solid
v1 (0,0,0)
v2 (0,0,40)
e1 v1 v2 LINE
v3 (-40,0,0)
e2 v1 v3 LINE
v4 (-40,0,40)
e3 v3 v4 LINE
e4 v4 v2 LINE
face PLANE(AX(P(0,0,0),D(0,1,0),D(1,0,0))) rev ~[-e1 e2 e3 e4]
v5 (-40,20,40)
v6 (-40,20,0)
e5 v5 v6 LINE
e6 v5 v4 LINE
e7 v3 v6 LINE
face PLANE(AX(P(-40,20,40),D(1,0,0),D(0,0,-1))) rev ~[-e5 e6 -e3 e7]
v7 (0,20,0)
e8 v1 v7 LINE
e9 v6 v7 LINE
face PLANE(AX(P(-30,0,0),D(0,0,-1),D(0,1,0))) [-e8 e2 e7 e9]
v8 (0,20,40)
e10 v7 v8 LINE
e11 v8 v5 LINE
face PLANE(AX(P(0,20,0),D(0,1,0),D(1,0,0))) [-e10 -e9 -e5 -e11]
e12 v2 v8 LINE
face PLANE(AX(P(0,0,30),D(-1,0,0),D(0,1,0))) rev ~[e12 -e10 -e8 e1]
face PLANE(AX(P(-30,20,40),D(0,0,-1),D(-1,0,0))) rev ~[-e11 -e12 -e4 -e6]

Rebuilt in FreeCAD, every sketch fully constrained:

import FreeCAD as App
import Part
import Sketcher


def add_polygon(sketch, points):
    """Adds a closed chain of lines whose ends are joined by coincident constraints."""
    first, n = sketch.GeometryCount, len(points)
    for a, b in zip(points, points[1:] + points[:1]):
        sketch.addGeometry(Part.LineSegment(App.Vector(*a, 0), App.Vector(*b, 0)), False)
    for i in range(n):
        sketch.addConstraint(Sketcher.Constraint("Coincident", first + i, 2, first + (i + 1) % n, 1))

doc = App.newDocument("Part")
params = doc.addObject("Spreadsheet::Sheet", "Params")
for row, (alias, value) in enumerate([
    ("sketch1_width", "30 mm"),
    ("pad1_length", "15 mm"),
    ("sketch2_width", "30 mm"),
    ("pad2_length", "5 mm"),
    ("sketch3_width", "30 mm"),
    ("sketch3_height", "20 mm"),
    ("pad3_length", "10 mm"),
    ("sketch4_width", "20 mm"),
    ("pad4_length", "10 mm"),
    ("sketch5_width", "10 mm"),
    ("pad5_length", "20 mm"),
], start=1):
    params.set(f"A{row}", alias)
    params.set(f"B{row}", "=" + value)
    params.setAlias(f"B{row}", alias)

body = doc.addObject("PartDesign::Body", "Body")

# Sketch on XZ plane
sketch1 = body.newObject("Sketcher::SketchObject", "Sketch")
sketch1.AttachmentSupport = (doc.getObject("XZ_Plane"), [""])
sketch1.MapMode = "FlatFace"
add_polygon(sketch1, [(0, 30), (0, 0), (-30, 0), (-30, 30)])  # lines 0-3
sketch1.addConstraint(Sketcher.Constraint("Vertical", 0))
sketch1.addConstraint(Sketcher.Constraint("Horizontal", 1))
sketch1.addConstraint(Sketcher.Constraint("Vertical", 2))
sketch1.addConstraint(Sketcher.Constraint("Horizontal", 3))
sketch1.addConstraint(Sketcher.Constraint("Coincident", 0, 2, -1, 1))
sketch1.addConstraint(Sketcher.Constraint("Equal", 3, 0))
sketch1.addConstraint(Sketcher.Constraint("DistanceX", 1, 2, 1, 1, 30.0))
sketch1.setExpression("Constraints[10]", "Params.sketch1_width")
pad1 = body.newObject("PartDesign::Pad", "Pad")
pad1.Profile = sketch1
pad1.setExpression("Length", "Params.pad1_length")
pad1.Reversed = True

# Sketch on XZ plane
sketch2 = body.newObject("Sketcher::SketchObject", "Sketch001")
sketch2.AttachmentSupport = (doc.getObject("XZ_Plane"), [""])
sketch2.MapMode = "FlatFace"
sketch2.AttachmentOffset = App.Placement(App.Vector(0, 0, -15), App.Rotation())
add_polygon(sketch2, [(0, 0), (-30, 0), (-30, 30), (0, 30)])  # lines 0-3
sketch2.addConstraint(Sketcher.Constraint("Horizontal", 0))
sketch2.addConstraint(Sketcher.Constraint("Vertical", 1))
sketch2.addConstraint(Sketcher.Constraint("Horizontal", 2))
sketch2.addConstraint(Sketcher.Constraint("Vertical", 3))
sketch2.addConstraint(Sketcher.Constraint("Coincident", 3, 2, -1, 1))
sketch2.addConstraint(Sketcher.Constraint("Equal", 2, 1))
sketch2.addConstraint(Sketcher.Constraint("DistanceX", 0, 2, 0, 1, 30.0))
sketch2.setExpression("Constraints[10]", "Params.sketch2_width")
pad2 = body.newObject("PartDesign::Pad", "Pad001")
pad2.Profile = sketch2
pad2.setExpression("Length", "Params.pad2_length")
pad2.Reversed = True

# Sketch on XY plane
sketch3 = body.newObject("Sketcher::SketchObject", "Sketch002")
sketch3.AttachmentSupport = (doc.getObject("XY_Plane"), [""])
sketch3.MapMode = "FlatFace"
sketch3.AttachmentOffset = App.Placement(App.Vector(0, 0, 30), App.Rotation())
add_polygon(sketch3, [(-30, 0), (0, 0), (0, 20), (-30, 20)])  # lines 0-3
sketch3.addConstraint(Sketcher.Constraint("Horizontal", 0))
sketch3.addConstraint(Sketcher.Constraint("Vertical", 1))
sketch3.addConstraint(Sketcher.Constraint("Horizontal", 2))
sketch3.addConstraint(Sketcher.Constraint("Vertical", 3))
sketch3.addConstraint(Sketcher.Constraint("Coincident", 0, 2, -1, 1))
sketch3.addConstraint(Sketcher.Constraint("DistanceX", 0, 1, 0, 2, 30.0))
sketch3.addConstraint(Sketcher.Constraint("DistanceY", 1, 1, 1, 2, 20.0))
sketch3.setExpression("Constraints[9]", "Params.sketch3_width")
sketch3.setExpression("Constraints[10]", "Params.sketch3_height")
pad3 = body.newObject("PartDesign::Pad", "Pad002")
pad3.Profile = sketch3
pad3.setExpression("Length", "Params.pad3_length")

# Sketch on YZ plane
sketch4 = body.newObject("Sketcher::SketchObject", "Sketch003")
sketch4.AttachmentSupport = (doc.getObject("YZ_Plane"), [""])
sketch4.MapMode = "FlatFace"
sketch4.AttachmentOffset = App.Placement(App.Vector(0, 0, -30), App.Rotation())
add_polygon(sketch4, [(20, 0), (0, 0), (0, 40), (20, 40)])  # lines 0-3
sketch4.addConstraint(Sketcher.Constraint("Horizontal", 0))
sketch4.addConstraint(Sketcher.Constraint("Vertical", 1))
sketch4.addConstraint(Sketcher.Constraint("Horizontal", 2))
sketch4.addConstraint(Sketcher.Constraint("Vertical", 3))
sketch4.addConstraint(Sketcher.Constraint("Coincident", 0, 2, -1, 1))
sketch4.addConstraint(Sketcher.Constraint("DistanceX", 0, 2, 0, 1, 20.0))
sketch4.addConstraint(Sketcher.Constraint("DistanceY", 1, 1, 1, 2, 39.8587))
sketch4.setExpression("Constraints[9]", "Params.sketch4_width")
pad4 = body.newObject("PartDesign::Pad", "Pad003")
pad4.Profile = sketch4
pad4.setExpression("Length", "Params.pad4_length")
pad4.Reversed = True

# Sketch on XZ plane
sketch5 = body.newObject("Sketcher::SketchObject", "Sketch004")
sketch5.AttachmentSupport = (doc.getObject("XZ_Plane"), [""])
sketch5.MapMode = "FlatFace"
sketch5.AttachmentOffset = App.Placement(App.Vector(0, 0, -20), App.Rotation())
add_polygon(sketch5, [(-30, 40), (-30, 39.86), (-40, 39.86), (-40, 40)])  # lines 0-3
sketch5.addConstraint(Sketcher.Constraint("Vertical", 0))
sketch5.addConstraint(Sketcher.Constraint("Horizontal", 1))
sketch5.addConstraint(Sketcher.Constraint("Vertical", 2))
sketch5.addConstraint(Sketcher.Constraint("Horizontal", 3))
sketch5.addConstraint(Sketcher.Constraint("DistanceX", 1, 2, 1, 1, 10.0))
sketch5.addConstraint(Sketcher.Constraint("DistanceX", 0, 2, -1, 1, 30.0))
sketch5.addConstraint(Sketcher.Constraint("DistanceY", -1, 1, 2, 2, 40.0))
sketch5.addConstraint(Sketcher.Constraint("DistanceY", 0, 2, 0, 1, 0.1413))
sketch5.setExpression("Constraints[8]", "Params.sketch5_width")
pad5 = body.newObject("PartDesign::Pad", "Pad004")
pad5.Profile = sketch5
pad5.setExpression("Length", "Params.pad5_length")

doc.recompute()
